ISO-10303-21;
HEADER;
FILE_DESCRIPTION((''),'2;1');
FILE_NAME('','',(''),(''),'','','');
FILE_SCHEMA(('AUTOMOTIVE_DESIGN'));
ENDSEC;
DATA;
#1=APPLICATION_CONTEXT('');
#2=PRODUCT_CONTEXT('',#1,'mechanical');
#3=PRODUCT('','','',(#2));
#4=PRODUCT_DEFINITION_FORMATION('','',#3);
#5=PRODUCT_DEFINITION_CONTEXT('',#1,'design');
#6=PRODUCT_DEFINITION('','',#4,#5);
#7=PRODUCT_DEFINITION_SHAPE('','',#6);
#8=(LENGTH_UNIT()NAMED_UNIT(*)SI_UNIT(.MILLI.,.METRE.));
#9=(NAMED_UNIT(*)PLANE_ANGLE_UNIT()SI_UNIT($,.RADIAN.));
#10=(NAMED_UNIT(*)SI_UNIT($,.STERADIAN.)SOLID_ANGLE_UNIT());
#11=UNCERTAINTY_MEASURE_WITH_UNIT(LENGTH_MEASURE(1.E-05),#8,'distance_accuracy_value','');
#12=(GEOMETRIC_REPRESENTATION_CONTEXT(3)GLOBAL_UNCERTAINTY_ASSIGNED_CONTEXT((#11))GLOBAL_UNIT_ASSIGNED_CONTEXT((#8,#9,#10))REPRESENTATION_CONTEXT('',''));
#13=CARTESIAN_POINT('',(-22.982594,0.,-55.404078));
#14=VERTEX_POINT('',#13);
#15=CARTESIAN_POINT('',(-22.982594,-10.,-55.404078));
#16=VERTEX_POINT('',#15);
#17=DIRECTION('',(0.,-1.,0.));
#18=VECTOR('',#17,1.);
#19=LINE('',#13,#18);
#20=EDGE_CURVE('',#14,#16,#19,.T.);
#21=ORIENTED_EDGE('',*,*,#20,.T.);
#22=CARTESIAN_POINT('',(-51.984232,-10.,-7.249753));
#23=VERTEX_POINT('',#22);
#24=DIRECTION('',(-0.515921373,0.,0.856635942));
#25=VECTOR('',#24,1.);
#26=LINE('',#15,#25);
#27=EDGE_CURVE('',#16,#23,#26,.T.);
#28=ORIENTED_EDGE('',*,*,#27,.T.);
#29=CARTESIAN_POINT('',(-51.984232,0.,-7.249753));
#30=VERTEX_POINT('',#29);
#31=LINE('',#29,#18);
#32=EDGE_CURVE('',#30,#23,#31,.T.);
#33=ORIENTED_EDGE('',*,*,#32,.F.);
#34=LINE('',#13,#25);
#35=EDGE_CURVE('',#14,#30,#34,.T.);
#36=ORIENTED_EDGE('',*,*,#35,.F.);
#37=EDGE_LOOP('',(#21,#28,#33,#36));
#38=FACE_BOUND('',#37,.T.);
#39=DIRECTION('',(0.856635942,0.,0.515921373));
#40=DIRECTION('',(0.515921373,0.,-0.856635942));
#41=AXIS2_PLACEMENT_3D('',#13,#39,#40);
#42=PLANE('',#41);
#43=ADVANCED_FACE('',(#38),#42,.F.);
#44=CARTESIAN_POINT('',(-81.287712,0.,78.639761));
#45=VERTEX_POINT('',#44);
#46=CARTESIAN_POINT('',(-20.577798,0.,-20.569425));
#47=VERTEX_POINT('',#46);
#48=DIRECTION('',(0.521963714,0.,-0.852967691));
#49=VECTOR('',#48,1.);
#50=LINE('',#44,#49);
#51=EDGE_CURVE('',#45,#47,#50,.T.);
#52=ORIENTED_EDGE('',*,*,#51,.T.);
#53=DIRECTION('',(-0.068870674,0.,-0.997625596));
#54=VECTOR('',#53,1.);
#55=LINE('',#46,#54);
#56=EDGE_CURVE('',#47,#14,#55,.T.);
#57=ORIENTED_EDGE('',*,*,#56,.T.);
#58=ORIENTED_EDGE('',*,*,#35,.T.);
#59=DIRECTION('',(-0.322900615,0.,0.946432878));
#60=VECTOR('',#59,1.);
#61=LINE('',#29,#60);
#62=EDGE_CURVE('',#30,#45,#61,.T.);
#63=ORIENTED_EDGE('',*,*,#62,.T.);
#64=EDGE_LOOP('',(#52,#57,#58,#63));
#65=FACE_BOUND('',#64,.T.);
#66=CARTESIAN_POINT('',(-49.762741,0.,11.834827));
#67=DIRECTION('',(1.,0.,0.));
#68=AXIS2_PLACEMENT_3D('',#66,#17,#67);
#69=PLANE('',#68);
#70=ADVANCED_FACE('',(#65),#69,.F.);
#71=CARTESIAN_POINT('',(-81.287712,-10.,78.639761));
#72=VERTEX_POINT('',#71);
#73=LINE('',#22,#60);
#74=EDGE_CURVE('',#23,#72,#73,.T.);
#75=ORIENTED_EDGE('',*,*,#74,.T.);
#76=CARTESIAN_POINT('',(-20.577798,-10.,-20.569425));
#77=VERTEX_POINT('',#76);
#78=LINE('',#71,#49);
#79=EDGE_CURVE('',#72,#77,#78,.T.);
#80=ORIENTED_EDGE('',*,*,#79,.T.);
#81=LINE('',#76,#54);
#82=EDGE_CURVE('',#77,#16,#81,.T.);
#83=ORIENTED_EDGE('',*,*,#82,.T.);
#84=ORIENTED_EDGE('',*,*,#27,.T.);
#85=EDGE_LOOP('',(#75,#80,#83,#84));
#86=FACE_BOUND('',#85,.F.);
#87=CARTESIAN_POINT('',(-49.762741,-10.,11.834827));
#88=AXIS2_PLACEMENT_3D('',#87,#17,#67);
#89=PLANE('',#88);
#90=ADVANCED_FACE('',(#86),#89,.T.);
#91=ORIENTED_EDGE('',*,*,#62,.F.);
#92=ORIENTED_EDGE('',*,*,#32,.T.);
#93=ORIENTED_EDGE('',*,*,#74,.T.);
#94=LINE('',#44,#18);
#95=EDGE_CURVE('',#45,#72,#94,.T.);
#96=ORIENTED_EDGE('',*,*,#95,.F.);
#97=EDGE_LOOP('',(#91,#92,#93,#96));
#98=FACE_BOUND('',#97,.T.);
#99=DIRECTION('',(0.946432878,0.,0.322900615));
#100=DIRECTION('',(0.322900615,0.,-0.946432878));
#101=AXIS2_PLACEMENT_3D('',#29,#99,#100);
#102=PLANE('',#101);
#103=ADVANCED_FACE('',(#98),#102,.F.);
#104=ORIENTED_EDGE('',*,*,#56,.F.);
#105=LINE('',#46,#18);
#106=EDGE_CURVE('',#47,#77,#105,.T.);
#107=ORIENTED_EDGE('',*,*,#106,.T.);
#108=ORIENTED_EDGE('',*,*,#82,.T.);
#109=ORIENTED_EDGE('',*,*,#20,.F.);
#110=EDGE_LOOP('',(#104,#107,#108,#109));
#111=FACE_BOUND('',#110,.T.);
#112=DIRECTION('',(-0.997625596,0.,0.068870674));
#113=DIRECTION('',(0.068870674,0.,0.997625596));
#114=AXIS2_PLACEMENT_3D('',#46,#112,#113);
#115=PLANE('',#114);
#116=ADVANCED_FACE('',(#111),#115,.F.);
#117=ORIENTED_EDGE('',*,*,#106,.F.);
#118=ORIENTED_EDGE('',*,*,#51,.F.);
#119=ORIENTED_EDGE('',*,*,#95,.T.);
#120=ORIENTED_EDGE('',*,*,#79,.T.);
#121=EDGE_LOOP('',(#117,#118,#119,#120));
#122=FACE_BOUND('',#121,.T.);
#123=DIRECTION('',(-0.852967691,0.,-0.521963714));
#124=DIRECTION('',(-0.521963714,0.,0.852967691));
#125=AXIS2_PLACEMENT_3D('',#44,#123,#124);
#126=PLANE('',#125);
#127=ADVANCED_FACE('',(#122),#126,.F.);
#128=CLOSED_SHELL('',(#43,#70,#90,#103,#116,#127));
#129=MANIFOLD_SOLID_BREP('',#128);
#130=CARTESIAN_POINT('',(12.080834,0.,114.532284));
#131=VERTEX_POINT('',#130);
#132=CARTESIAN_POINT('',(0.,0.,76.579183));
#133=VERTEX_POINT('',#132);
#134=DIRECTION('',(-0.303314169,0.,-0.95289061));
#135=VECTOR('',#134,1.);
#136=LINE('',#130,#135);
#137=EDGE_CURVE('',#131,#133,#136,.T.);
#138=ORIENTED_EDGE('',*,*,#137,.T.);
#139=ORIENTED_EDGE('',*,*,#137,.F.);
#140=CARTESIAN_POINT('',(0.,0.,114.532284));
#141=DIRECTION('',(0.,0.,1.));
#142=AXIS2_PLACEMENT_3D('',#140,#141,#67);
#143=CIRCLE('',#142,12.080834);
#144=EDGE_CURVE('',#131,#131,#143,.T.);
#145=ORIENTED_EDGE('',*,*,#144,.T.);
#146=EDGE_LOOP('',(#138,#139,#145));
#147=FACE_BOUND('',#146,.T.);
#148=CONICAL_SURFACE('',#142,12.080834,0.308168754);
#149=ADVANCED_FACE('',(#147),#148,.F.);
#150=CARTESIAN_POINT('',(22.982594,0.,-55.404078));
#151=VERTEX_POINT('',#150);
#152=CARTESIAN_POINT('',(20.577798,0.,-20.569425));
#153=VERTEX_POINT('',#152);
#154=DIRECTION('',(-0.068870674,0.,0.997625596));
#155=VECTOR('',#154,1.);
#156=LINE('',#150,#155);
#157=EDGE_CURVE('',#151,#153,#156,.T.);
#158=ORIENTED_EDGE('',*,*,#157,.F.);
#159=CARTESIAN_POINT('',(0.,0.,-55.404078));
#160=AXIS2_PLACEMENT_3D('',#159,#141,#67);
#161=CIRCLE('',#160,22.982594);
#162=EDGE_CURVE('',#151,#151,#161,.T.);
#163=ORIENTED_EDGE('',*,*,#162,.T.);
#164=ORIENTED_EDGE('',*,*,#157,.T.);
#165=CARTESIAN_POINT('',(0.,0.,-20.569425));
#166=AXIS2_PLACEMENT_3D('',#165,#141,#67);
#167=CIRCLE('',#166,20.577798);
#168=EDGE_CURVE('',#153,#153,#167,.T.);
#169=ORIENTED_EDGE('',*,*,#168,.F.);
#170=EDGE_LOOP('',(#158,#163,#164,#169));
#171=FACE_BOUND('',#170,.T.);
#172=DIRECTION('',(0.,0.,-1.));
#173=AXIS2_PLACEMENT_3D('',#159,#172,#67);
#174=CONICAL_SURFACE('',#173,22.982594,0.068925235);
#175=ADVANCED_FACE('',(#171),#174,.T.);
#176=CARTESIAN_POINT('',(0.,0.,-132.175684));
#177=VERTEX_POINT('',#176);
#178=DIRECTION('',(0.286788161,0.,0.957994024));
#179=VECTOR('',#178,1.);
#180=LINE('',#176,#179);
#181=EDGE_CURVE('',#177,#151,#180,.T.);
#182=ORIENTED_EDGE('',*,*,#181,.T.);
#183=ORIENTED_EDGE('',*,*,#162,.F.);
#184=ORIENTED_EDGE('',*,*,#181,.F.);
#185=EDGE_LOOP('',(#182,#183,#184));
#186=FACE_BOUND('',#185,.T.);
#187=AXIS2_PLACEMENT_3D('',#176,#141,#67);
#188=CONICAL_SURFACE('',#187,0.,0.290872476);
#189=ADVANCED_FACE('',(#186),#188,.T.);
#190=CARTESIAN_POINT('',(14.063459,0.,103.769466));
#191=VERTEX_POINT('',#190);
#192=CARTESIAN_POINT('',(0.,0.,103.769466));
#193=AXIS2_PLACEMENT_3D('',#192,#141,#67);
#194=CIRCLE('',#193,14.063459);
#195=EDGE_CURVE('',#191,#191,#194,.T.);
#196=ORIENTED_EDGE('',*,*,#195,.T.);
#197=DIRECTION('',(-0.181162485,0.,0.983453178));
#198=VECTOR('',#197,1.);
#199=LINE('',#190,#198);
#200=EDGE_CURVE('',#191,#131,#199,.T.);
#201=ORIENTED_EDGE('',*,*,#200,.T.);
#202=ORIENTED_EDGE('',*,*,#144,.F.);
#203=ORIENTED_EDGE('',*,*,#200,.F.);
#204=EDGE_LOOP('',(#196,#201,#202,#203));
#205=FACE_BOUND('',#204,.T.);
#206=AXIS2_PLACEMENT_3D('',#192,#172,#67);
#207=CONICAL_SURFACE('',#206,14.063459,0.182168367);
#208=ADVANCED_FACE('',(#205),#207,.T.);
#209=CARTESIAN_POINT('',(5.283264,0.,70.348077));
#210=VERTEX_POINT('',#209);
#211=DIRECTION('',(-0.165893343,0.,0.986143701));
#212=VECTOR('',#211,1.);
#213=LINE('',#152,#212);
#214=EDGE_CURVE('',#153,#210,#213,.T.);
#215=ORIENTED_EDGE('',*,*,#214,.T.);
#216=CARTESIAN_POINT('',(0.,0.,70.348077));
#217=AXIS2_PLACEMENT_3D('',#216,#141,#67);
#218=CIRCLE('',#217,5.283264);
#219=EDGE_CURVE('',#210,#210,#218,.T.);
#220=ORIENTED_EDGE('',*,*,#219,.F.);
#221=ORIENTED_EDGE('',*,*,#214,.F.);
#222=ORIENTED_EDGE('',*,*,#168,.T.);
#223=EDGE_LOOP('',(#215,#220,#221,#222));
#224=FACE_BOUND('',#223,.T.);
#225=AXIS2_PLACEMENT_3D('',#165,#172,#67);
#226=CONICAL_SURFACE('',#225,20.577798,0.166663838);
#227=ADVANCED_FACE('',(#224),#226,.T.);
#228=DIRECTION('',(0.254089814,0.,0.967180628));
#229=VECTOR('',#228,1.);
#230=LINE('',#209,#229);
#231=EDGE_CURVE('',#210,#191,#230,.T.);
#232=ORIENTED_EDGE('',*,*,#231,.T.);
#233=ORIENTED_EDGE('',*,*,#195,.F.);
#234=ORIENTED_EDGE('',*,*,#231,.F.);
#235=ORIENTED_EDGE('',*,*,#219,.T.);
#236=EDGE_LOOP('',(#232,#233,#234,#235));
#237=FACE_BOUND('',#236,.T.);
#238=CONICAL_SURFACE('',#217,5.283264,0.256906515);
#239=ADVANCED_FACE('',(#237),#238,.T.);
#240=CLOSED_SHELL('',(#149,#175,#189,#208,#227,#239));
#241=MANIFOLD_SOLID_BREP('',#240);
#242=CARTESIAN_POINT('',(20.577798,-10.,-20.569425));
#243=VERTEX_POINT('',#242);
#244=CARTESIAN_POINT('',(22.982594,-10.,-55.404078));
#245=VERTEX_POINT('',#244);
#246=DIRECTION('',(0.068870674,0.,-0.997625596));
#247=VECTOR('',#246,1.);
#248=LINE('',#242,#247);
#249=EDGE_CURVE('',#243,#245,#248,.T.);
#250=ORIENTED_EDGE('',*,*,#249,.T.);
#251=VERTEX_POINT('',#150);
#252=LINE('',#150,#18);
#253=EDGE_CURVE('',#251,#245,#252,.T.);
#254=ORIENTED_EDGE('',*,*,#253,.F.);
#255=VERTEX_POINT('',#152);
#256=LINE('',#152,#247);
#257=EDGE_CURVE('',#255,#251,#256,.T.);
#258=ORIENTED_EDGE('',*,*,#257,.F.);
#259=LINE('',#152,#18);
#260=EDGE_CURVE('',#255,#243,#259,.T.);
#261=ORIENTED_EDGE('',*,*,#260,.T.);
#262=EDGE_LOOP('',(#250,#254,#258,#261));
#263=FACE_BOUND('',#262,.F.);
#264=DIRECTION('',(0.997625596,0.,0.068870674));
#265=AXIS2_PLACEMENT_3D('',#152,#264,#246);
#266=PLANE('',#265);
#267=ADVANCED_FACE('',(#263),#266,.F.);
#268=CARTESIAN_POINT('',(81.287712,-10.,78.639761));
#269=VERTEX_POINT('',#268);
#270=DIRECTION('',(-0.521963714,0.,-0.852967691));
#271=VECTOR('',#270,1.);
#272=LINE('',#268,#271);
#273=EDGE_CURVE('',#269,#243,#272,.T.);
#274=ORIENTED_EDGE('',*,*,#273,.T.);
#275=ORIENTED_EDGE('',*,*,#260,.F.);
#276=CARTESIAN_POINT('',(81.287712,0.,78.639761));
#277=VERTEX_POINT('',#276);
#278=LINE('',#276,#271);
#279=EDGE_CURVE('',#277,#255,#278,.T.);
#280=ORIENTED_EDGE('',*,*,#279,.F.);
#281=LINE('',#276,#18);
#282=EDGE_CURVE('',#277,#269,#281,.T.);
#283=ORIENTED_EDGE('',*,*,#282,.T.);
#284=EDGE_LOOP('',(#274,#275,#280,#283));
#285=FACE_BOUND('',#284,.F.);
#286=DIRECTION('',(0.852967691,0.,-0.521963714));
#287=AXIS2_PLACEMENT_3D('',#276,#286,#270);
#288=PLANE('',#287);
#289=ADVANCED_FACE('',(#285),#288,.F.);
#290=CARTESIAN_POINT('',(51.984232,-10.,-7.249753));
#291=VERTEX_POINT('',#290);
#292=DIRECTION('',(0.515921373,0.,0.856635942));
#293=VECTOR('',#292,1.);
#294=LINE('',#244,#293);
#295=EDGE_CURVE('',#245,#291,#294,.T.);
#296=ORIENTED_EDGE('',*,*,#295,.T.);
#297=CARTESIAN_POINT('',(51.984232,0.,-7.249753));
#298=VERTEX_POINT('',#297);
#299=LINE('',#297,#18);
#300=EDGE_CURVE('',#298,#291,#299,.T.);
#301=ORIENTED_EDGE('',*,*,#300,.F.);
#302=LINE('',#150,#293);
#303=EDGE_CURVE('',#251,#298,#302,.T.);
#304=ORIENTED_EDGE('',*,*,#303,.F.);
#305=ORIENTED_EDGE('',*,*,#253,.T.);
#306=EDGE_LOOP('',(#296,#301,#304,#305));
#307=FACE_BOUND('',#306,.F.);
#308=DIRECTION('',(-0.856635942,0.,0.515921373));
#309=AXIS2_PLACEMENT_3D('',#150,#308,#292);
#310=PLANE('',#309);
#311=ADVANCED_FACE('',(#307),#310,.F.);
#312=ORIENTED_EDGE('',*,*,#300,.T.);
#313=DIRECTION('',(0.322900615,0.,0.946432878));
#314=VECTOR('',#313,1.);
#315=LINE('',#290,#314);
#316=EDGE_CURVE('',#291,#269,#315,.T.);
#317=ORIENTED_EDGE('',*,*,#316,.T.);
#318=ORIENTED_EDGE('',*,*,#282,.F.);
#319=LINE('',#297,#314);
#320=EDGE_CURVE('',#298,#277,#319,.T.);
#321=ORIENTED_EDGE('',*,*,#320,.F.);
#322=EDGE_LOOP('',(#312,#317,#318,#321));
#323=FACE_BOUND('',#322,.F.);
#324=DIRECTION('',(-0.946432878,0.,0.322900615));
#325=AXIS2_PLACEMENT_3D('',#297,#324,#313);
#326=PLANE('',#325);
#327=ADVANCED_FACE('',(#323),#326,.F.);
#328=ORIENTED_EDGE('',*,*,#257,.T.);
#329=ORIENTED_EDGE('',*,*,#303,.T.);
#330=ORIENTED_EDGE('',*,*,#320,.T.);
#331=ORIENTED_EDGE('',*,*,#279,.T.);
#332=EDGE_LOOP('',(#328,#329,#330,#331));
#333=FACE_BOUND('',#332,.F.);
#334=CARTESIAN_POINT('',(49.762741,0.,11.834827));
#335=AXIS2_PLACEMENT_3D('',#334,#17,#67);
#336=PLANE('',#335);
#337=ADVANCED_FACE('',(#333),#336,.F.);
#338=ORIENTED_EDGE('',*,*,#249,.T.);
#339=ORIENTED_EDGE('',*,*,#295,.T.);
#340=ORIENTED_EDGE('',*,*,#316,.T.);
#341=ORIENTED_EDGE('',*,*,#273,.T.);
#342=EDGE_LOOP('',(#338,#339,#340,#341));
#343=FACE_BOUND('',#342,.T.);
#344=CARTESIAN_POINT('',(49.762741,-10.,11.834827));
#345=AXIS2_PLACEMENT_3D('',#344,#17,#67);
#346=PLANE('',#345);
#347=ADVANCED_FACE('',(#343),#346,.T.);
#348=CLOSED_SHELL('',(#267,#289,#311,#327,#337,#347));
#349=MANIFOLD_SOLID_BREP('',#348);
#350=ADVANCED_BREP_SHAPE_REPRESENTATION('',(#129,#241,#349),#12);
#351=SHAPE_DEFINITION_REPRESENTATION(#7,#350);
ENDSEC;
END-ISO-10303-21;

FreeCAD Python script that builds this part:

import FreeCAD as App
import Part
import Sketcher

V = App.Vector

doc = App.newDocument("Part")
body = doc.addObject("PartDesign::Body", "Body")

# Sketch on XZ plane
sketch1 = body.newObject("Sketcher::SketchObject", "Sketch")
sketch1.AttachmentSupport = (doc.getObject("XZ_Plane"), [""])
sketch1.MapMode = "FlatFace"
sketch1.addGeometry([
    Part.LineSegment(V(21, -21, 0), V(23, -55, 0)),
    Part.LineSegment(V(23, -55, 0), V(52, -7, 0)),
    Part.LineSegment(V(52, -7, 0), V(81, 79, 0)),
    Part.LineSegment(V(81, 79, 0), V(21, -21, 0)),
], False)
sketch1.addConstraint([
    Sketcher.Constraint("Coincident", 0, 2, 1, 1),
    Sketcher.Constraint("Coincident", 1, 2, 2, 1),
    Sketcher.Constraint("Coincident", 2, 2, 3, 1),
    Sketcher.Constraint("Coincident", 3, 2, 0, 1),
    Sketcher.Constraint("DistanceX", -1, 1, 3, 2, 20.577798),
    Sketcher.Constraint("Distance", 0, 34.917561),
    Sketcher.Constraint("Distance", 1, 56.21329),
    Sketcher.Constraint("Distance", 2, 90.750772),
    Sketcher.Constraint("DistanceX", -1, 1, 2, 2, 81.287712),
    Sketcher.Constraint("DistanceY", -1, 1, 2, 2, 78.639761),
    Sketcher.Constraint("DistanceX", 0, 2, 1, 2, 29.001638),
    Sketcher.Constraint("DistanceX", 1, 2, 2, 2, 29.30348),
])
pad1 = body.newObject("PartDesign::Pad", "Pad")
pad1.Profile = sketch1
pad1.Length = 10
body2 = doc.addObject("PartDesign::Body", "Body001")
doc.recompute()

mirroring = doc.addObject("Part::Mirroring", "Mirroring")
mirroring.Source = body
mirroring.Base = V(0, 0, 0)
mirroring.Normal = V(1, 0, 0)
body2.BaseFeature = mirroring
doc.recompute()
body3 = doc.addObject("PartDesign::Body", "Body002")

# Sketch on XZ plane
sketch2 = body3.newObject("Sketcher::SketchObject", "Sketch001")
sketch2.AttachmentSupport = (doc.getObject("XZ_Plane002"), [""])
sketch2.MapMode = "FlatFace"
sketch2.addGeometry([
    Part.LineSegment(V(12, 115, 0), V(0, 77, 0)),  # 0
    Part.LineSegment(V(0, 77, 0), V(0, -132, 0)),  # 1
    Part.LineSegment(V(0, -132, 0), V(23, -55, 0)),  # 2
    Part.LineSegment(V(23, -55, 0), V(21, -21, 0)),  # 3
    Part.LineSegment(V(21, -21, 0), V(5, 70, 0)),  # 4
    Part.LineSegment(V(5, 70, 0), V(14, 104, 0)),  # 5
    Part.LineSegment(V(14, 104, 0), V(12, 115, 0)),  # 6
], False)
sketch2.addConstraint([
    Sketcher.Constraint("Coincident", 0, 2, 1, 1),
    Sketcher.Constraint("Coincident", 1, 2, 2, 1),
    Sketcher.Constraint("Coincident", 2, 2, 3, 1),
    Sketcher.Constraint("Coincident", 3, 2, 4, 1),
    Sketcher.Constraint("Coincident", 4, 2, 5, 1),
    Sketcher.Constraint("Coincident", 5, 2, 6, 1),
    Sketcher.Constraint("Coincident", 6, 2, 0, 1),
    Sketcher.Constraint("Vertical", 1),
    Sketcher.Constraint("PointOnObject", 0, 2, -2),
    Sketcher.Constraint("DistanceX", -1, 1, 3, 2, 20.577798),
    Sketcher.Constraint("DistanceY", 3, 2, 4, 2, 90.917502),
    Sketcher.Constraint("DistanceY", 0, 2, 6, 2, 37.953101),
    Sketcher.Constraint("Distance", 0, 39.829442),
    Sketcher.Constraint("Distance", 3, 34.917561),
    Sketcher.Constraint("Distance", 5, 34.555478),
    Sketcher.Constraint("DistanceY", 1, 2, 1, 1, 208.754867),
    Sketcher.Constraint("DistanceX", -1, 1, 5, 2, 14.063459),
    Sketcher.Constraint("DistanceY", 2, 2, 0, 2, 131.983261),
    Sketcher.Constraint("DistanceY", 1, 2, 3, 2, 111.606259),
    Sketcher.Constraint("DistanceX", 4, 2, 2, 2, 17.69933),
    Sketcher.Constraint("DistanceY", -1, 1, 0, 2, 76.579183),
])
revolution = body3.newObject("PartDesign::Revolution", "Revolution")
revolution.Profile = sketch2
revolution.ReferenceAxis = (sketch2, ["V_Axis"])
revolution.Angle = 360
mirroring.Visibility = False

doc.recompute()
